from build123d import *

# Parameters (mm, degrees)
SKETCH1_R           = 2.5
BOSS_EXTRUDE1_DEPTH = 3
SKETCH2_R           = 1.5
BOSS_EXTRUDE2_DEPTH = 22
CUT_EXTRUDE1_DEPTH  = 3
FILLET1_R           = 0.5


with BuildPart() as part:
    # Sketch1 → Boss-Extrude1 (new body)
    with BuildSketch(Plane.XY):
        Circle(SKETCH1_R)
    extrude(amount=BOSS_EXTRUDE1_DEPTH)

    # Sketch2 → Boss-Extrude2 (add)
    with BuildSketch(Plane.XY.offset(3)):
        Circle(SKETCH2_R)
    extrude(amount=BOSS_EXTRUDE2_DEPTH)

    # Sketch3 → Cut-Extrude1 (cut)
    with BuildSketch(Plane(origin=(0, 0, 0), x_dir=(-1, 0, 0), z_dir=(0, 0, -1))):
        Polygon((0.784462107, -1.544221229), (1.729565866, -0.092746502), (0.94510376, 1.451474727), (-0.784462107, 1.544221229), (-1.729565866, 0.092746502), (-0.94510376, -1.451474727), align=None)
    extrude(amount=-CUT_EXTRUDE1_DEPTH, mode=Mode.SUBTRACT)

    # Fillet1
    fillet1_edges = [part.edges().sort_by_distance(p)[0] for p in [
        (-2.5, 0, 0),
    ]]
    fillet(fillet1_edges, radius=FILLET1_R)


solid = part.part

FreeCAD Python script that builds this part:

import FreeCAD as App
import Part
import Sketcher


def edges_at(feature, points):
    """Names of the edges that pass closest to the given points."""
    edges = feature.Shape.Edges
    near = lambda p: min(range(len(edges)), key=lambda i: edges[i].distToShape(Part.Vertex(*p))[0])
    return sorted({f"Edge{near(p) + 1}" for p in points})


def add_polygon(sketch, points):
    """Adds a closed chain of lines whose ends are joined by coincident constraints."""
    first, n = sketch.GeometryCount, len(points)
    for a, b in zip(points, points[1:] + points[:1]):
        sketch.addGeometry(Part.LineSegment(App.Vector(*a, 0), App.Vector(*b, 0)), False)
    for i in range(n):
        sketch.addConstraint(Sketcher.Constraint("Coincident", first + i, 2, first + (i + 1) % n, 1))

doc = App.newDocument("Part")
body = doc.addObject("PartDesign::Body", "Body")
body.AllowCompound = True

# Sketch on XY plane
sketch1 = body.newObject("Sketcher::SketchObject", "Sketch")
sketch1.AttachmentSupport = (doc.getObject("XY_Plane"), [""])
sketch1.MapMode = "FlatFace"
sketch1.addGeometry(Part.Circle(App.Vector(0, 0, 0), App.Vector(0, 0, 1), 2.5), False)
sketch1.addConstraint(Sketcher.Constraint("Coincident", 0, 3, -1, 1))
sketch1.addConstraint(Sketcher.Constraint("Diameter", 0, 5.0))
pad1 = body.newObject("PartDesign::Pad", "Pad")
pad1.Profile = sketch1
pad1.Length = 3

# Sketch on XY plane
sketch2 = body.newObject("Sketcher::SketchObject", "Sketch001")
sketch2.AttachmentSupport = (doc.getObject("XY_Plane"), [""])
sketch2.MapMode = "FlatFace"
sketch2.AttachmentOffset = App.Placement(App.Vector(0, 0, 3), App.Rotation())
sketch2.addGeometry(Part.Circle(App.Vector(0, 0, 0), App.Vector(0, 0, 1), 1.5), False)
sketch2.addConstraint(Sketcher.Constraint("Coincident", 0, 3, -1, 1))
sketch2.addConstraint(Sketcher.Constraint("Diameter", 0, 3.0))
pad2 = body.newObject("PartDesign::Pad", "Pad001")
pad2.Profile = sketch2
pad2.Length = 22

# Sketch on XY plane
sketch3 = body.newObject("Sketcher::SketchObject", "Sketch002")
sketch3.AttachmentSupport = (doc.getObject("XY_Plane"), [""])
sketch3.MapMode = "FlatFace"
add_polygon(sketch3, [(-0.784462, -1.544221), (-1.729566, -0.092747), (-0.945104, 1.451475), (0.784462, 1.544221), (1.729566, 0.092747), (0.945104, -1.451475)])  # lines 0-5
sketch3.addConstraint(Sketcher.Constraint("Symmetric", 0, 2, 3, 2, -1, 1))
sketch3.addConstraint(Sketcher.Constraint("Symmetric", 1, 2, 4, 2, -1, 1))
sketch3.addConstraint(Sketcher.Constraint("Symmetric", 2, 2, 5, 2, -1, 1))
sketch3.addConstraint(Sketcher.Constraint("Equal", 0, 1))
sketch3.addConstraint(Sketcher.Constraint("Equal", 1, 2))
sketch3.addConstraint(Sketcher.Constraint("Distance", 0, 1.732051))
sketch3.addConstraint(Sketcher.Constraint("DistanceY", -1, 1, 2, 2, 1.544221))
sketch3.addConstraint(Sketcher.Constraint("DistanceY", 0, 2, 1, 2, 1.544221))
sketch3.addConstraint(Sketcher.Constraint("DistanceX", 1, 2, 3, 2, 2.67467))
pocket1 = body.newObject("PartDesign::Pocket", "Pocket")
pocket1.Profile = sketch3
pocket1.Length = 3
pocket1.Reversed = True
doc.recompute()

fillet = body.newObject("PartDesign::Fillet", "Fillet")
fillet.Base = (pocket1, edges_at(pocket1, [(-2.5, 0, 0)]))
fillet.Radius = 0.5

doc.recompute()
